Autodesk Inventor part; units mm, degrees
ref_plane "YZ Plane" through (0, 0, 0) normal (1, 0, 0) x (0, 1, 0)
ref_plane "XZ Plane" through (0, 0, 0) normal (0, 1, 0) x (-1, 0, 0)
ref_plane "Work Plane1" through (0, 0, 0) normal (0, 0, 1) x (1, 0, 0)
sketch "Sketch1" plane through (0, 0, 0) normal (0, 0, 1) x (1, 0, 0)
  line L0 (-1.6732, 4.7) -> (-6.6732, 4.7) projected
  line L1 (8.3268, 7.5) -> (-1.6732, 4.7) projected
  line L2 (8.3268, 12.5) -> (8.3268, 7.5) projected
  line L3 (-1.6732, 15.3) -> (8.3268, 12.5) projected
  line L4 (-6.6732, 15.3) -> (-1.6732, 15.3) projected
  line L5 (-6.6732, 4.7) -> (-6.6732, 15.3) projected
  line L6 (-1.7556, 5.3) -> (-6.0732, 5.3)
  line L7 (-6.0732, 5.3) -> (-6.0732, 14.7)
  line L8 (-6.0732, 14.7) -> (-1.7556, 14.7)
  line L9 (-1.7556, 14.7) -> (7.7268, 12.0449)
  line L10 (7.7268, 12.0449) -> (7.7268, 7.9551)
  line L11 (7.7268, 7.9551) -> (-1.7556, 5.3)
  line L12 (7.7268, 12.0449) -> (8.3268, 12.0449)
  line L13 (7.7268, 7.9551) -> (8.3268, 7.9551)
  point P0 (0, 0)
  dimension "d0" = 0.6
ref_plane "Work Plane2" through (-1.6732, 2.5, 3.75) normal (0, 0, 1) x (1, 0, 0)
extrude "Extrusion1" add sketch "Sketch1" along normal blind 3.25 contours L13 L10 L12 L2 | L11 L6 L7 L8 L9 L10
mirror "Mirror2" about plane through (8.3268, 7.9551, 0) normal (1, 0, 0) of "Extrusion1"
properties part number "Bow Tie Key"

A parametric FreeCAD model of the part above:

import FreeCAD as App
import Part
import Sketcher


def add_polygon(sketch, points):
    """Adds a closed chain of lines whose ends are joined by coincident constraints."""
    first, n = sketch.GeometryCount, len(points)
    for a, b in zip(points, points[1:] + points[:1]):
        sketch.addGeometry(Part.LineSegment(App.Vector(*a, 0), App.Vector(*b, 0)), False)
    for i in range(n):
        sketch.addConstraint(Sketcher.Constraint("Coincident", first + i, 2, first + (i + 1) % n, 1))

doc = App.newDocument("Part")
body = doc.addObject("PartDesign::Body", "Body")

sketch1 = body.newObject("Sketcher::SketchObject", "Sketch")
sketch1.AttachmentSupport = (doc.getObject("XY_Plane"), [""])
sketch1.MapMode = "FlatFace"
add_polygon(sketch1, [(7.7, 8), (8.3, 8), (8.3, 12), (7.7, 12), (-1.8, 14.7), (-6.1, 14.7), (-6.1, 5.3), (-1.8, 5.3)])
sketch1.addConstraint([
    Sketcher.Constraint("Horizontal", 0),
    Sketcher.Constraint("Vertical", 1),
    Sketcher.Constraint("Horizontal", 2),
    Sketcher.Constraint("Horizontal", 4),
    Sketcher.Constraint("Vertical", 5),
    Sketcher.Constraint("Horizontal", 6),
    Sketcher.Constraint("Vertical", 3, 2, 6, 2),
    Sketcher.Constraint("Vertical", 2, 2, 7, 2),
    Sketcher.Constraint("Equal", 3, 7),
    Sketcher.Constraint("DistanceX", 0, 1, 0, 2, 0.6),
    Sketcher.Constraint("DistanceY", 5, 2, 5, 1, 9.4),
    Sketcher.Constraint("DistanceY", -1, 1, 3, 2, 14.7),
    Sketcher.Constraint("DistanceX", 4, 2, 2, 2, 13.8),
    Sketcher.Constraint("Distance", 3, 9.847),
    Sketcher.Constraint("DistanceX", 4, 2, 4, 1, 4.3176),
    Sketcher.Constraint("DistanceX", -1, 1, 0, 2, 8.3268),
])
pad1 = body.newObject("PartDesign::Pad", "Pad")
pad1.Profile = sketch1
pad1.Length = 3.25
doc.recompute()

datumplane = body.newObject("PartDesign::Plane", "DatumPlane")
datumplane.AttachmentSupport = (doc.getObject("YZ_Plane"), [""])
datumplane.MapMode = "FlatFace"
datumplane.AttachmentOffset = App.Placement(App.Vector(0, 0, 8.3268), App.Rotation())
mirrored = body.newObject("PartDesign::Mirrored", "Mirrored")
mirrored.Originals = [pad1]
mirrored.MirrorPlane = (datumplane, [""])
body.Tip = mirrored

doc.recompute()
